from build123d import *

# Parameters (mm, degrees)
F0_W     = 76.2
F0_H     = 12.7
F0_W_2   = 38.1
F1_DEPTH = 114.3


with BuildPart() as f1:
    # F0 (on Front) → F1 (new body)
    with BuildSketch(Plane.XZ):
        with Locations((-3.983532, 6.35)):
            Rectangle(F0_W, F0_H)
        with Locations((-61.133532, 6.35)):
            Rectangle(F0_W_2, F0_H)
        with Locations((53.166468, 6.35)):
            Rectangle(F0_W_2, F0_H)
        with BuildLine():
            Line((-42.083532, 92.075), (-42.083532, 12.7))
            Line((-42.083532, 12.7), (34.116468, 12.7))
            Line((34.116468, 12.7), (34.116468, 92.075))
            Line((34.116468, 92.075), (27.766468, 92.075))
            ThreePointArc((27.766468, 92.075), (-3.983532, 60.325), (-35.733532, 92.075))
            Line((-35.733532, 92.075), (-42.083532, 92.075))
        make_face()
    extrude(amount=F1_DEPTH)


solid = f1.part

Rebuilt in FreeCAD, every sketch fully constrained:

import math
import FreeCAD as App
import Part
import Sketcher
from FreeCAD import Vector
Q = App.Units.Quantity

doc = App.newDocument("Part")
params = doc.addObject("Spreadsheet::Sheet", "Params")
for row, (alias, value) in enumerate([
    ("sketch1_width", "6 in"),
    ("sketch1_radius", "1.25 in"),
    ("sketch1_width2", "1.5 in"),
    ("sketch1_height", "0.5 in"),
    ("sketch1_height2", "3.125 in"),
    ("pad1_length", "4.5 in"),
], start=1):
    params.set(f"A{row}", alias)
    params.set(f"B{row}", "=" + value)
    params.setAlias(f"B{row}", alias)

body = doc.addObject("PartDesign::Body", "Body")

# Sketch on XZ plane
sketch1 = body.newObject("Sketcher::SketchObject", "Sketch")
sketch1.AttachmentSupport = (doc.getObject("XZ_Plane"), [""])
sketch1.MapMode = "FlatFace"
sketch1.addGeometry([
    Part.LineSegment(Vector(-80.183532, 12.7, 0), Vector(-80.183532, 0, 0)),  # 0
    Part.LineSegment(Vector(-80.183532, 0, 0), Vector(72.216468, 0, 0)),  # 1
    Part.LineSegment(Vector(72.216468, 0, 0), Vector(72.216468, 12.7, 0)),  # 2
    Part.LineSegment(Vector(72.216468, 12.7, 0), Vector(34.116468, 12.7, 0)),  # 3
    Part.LineSegment(Vector(34.116468, 12.7, 0), Vector(34.116468, 92.075, 0)),  # 4
    Part.LineSegment(Vector(34.116468, 92.075, 0), Vector(27.766468, 92.075, 0)),  # 5
    Part.ArcOfCircle(Part.Circle(Vector(-3.983532, 92.075, 0), Vector(0, 0, 1), 31.75), math.radians(180), math.radians(360)),  # 6
    Part.LineSegment(Vector(-35.733532, 92.075, 0), Vector(-42.083532, 92.075, 0)),  # 7
    Part.LineSegment(Vector(-42.083532, 92.075, 0), Vector(-42.083532, 12.7, 0)),  # 8
    Part.LineSegment(Vector(-42.083532, 12.7, 0), Vector(-80.183532, 12.7, 0)),  # 9
], False)
sketch1.addConstraint([
    Sketcher.Constraint("Coincident", 0, 2, 1, 1),
    Sketcher.Constraint("Coincident", 1, 2, 2, 1),
    Sketcher.Constraint("Coincident", 2, 2, 3, 1),
    Sketcher.Constraint("Coincident", 3, 2, 4, 1),
    Sketcher.Constraint("Coincident", 4, 2, 5, 1),
    Sketcher.Constraint("Coincident", 5, 2, 6, 2),
    Sketcher.Constraint("Coincident", 6, 1, 7, 1),
    Sketcher.Constraint("Coincident", 7, 2, 8, 1),
    Sketcher.Constraint("Coincident", 8, 2, 9, 1),
    Sketcher.Constraint("Coincident", 9, 2, 0, 1),
    Sketcher.Constraint("Vertical", 0),
    Sketcher.Constraint("Horizontal", 1),
    Sketcher.Constraint("Vertical", 2),
    Sketcher.Constraint("Horizontal", 3),
    Sketcher.Constraint("Vertical", 4),
    Sketcher.Constraint("Horizontal", 5),
    Sketcher.Constraint("Horizontal", 7),
    Sketcher.Constraint("Vertical", 8),
    Sketcher.Constraint("Horizontal", 9),
    Sketcher.Constraint("PointOnObject", 0, 2, -1),
    Sketcher.Constraint("Horizontal", 6, 3, 4, 2),
    Sketcher.Constraint("Horizontal", 5, 2, 6, 1),
    Sketcher.Constraint("Horizontal", 3, 2, 8, 2),
    Sketcher.Constraint("Equal", 5, 7),
    Sketcher.Constraint("Equal", 3, 9),
    Sketcher.Constraint("DistanceX", 1, 1, 1, 2, Q("6 in")),
    Sketcher.Constraint("Radius", 6, Q("1.25 in")),
    Sketcher.Constraint("DistanceX", 3, 2, 3, 1, Q("1.5 in")),
    Sketcher.Constraint("DistanceY", 0, 2, 0, 1, Q("0.5 in")),
    Sketcher.Constraint("DistanceY", 4, 1, 4, 2, Q("3.125 in")),
    Sketcher.Constraint("DistanceX", 6, 3, -1, 1, Q("3.983532 mm")),
])
sketch1.setExpression("Constraints[25]", "Params.sketch1_width")
sketch1.setExpression("Constraints[26]", "Params.sketch1_radius")
sketch1.setExpression("Constraints[27]", "Params.sketch1_width2")
sketch1.setExpression("Constraints[28]", "Params.sketch1_height")
sketch1.setExpression("Constraints[29]", "Params.sketch1_height2")
pad1 = body.newObject("PartDesign::Pad", "Pad")
pad1.Profile = sketch1
pad1.setExpression("Length", "Params.pad1_length")

doc.recompute()
